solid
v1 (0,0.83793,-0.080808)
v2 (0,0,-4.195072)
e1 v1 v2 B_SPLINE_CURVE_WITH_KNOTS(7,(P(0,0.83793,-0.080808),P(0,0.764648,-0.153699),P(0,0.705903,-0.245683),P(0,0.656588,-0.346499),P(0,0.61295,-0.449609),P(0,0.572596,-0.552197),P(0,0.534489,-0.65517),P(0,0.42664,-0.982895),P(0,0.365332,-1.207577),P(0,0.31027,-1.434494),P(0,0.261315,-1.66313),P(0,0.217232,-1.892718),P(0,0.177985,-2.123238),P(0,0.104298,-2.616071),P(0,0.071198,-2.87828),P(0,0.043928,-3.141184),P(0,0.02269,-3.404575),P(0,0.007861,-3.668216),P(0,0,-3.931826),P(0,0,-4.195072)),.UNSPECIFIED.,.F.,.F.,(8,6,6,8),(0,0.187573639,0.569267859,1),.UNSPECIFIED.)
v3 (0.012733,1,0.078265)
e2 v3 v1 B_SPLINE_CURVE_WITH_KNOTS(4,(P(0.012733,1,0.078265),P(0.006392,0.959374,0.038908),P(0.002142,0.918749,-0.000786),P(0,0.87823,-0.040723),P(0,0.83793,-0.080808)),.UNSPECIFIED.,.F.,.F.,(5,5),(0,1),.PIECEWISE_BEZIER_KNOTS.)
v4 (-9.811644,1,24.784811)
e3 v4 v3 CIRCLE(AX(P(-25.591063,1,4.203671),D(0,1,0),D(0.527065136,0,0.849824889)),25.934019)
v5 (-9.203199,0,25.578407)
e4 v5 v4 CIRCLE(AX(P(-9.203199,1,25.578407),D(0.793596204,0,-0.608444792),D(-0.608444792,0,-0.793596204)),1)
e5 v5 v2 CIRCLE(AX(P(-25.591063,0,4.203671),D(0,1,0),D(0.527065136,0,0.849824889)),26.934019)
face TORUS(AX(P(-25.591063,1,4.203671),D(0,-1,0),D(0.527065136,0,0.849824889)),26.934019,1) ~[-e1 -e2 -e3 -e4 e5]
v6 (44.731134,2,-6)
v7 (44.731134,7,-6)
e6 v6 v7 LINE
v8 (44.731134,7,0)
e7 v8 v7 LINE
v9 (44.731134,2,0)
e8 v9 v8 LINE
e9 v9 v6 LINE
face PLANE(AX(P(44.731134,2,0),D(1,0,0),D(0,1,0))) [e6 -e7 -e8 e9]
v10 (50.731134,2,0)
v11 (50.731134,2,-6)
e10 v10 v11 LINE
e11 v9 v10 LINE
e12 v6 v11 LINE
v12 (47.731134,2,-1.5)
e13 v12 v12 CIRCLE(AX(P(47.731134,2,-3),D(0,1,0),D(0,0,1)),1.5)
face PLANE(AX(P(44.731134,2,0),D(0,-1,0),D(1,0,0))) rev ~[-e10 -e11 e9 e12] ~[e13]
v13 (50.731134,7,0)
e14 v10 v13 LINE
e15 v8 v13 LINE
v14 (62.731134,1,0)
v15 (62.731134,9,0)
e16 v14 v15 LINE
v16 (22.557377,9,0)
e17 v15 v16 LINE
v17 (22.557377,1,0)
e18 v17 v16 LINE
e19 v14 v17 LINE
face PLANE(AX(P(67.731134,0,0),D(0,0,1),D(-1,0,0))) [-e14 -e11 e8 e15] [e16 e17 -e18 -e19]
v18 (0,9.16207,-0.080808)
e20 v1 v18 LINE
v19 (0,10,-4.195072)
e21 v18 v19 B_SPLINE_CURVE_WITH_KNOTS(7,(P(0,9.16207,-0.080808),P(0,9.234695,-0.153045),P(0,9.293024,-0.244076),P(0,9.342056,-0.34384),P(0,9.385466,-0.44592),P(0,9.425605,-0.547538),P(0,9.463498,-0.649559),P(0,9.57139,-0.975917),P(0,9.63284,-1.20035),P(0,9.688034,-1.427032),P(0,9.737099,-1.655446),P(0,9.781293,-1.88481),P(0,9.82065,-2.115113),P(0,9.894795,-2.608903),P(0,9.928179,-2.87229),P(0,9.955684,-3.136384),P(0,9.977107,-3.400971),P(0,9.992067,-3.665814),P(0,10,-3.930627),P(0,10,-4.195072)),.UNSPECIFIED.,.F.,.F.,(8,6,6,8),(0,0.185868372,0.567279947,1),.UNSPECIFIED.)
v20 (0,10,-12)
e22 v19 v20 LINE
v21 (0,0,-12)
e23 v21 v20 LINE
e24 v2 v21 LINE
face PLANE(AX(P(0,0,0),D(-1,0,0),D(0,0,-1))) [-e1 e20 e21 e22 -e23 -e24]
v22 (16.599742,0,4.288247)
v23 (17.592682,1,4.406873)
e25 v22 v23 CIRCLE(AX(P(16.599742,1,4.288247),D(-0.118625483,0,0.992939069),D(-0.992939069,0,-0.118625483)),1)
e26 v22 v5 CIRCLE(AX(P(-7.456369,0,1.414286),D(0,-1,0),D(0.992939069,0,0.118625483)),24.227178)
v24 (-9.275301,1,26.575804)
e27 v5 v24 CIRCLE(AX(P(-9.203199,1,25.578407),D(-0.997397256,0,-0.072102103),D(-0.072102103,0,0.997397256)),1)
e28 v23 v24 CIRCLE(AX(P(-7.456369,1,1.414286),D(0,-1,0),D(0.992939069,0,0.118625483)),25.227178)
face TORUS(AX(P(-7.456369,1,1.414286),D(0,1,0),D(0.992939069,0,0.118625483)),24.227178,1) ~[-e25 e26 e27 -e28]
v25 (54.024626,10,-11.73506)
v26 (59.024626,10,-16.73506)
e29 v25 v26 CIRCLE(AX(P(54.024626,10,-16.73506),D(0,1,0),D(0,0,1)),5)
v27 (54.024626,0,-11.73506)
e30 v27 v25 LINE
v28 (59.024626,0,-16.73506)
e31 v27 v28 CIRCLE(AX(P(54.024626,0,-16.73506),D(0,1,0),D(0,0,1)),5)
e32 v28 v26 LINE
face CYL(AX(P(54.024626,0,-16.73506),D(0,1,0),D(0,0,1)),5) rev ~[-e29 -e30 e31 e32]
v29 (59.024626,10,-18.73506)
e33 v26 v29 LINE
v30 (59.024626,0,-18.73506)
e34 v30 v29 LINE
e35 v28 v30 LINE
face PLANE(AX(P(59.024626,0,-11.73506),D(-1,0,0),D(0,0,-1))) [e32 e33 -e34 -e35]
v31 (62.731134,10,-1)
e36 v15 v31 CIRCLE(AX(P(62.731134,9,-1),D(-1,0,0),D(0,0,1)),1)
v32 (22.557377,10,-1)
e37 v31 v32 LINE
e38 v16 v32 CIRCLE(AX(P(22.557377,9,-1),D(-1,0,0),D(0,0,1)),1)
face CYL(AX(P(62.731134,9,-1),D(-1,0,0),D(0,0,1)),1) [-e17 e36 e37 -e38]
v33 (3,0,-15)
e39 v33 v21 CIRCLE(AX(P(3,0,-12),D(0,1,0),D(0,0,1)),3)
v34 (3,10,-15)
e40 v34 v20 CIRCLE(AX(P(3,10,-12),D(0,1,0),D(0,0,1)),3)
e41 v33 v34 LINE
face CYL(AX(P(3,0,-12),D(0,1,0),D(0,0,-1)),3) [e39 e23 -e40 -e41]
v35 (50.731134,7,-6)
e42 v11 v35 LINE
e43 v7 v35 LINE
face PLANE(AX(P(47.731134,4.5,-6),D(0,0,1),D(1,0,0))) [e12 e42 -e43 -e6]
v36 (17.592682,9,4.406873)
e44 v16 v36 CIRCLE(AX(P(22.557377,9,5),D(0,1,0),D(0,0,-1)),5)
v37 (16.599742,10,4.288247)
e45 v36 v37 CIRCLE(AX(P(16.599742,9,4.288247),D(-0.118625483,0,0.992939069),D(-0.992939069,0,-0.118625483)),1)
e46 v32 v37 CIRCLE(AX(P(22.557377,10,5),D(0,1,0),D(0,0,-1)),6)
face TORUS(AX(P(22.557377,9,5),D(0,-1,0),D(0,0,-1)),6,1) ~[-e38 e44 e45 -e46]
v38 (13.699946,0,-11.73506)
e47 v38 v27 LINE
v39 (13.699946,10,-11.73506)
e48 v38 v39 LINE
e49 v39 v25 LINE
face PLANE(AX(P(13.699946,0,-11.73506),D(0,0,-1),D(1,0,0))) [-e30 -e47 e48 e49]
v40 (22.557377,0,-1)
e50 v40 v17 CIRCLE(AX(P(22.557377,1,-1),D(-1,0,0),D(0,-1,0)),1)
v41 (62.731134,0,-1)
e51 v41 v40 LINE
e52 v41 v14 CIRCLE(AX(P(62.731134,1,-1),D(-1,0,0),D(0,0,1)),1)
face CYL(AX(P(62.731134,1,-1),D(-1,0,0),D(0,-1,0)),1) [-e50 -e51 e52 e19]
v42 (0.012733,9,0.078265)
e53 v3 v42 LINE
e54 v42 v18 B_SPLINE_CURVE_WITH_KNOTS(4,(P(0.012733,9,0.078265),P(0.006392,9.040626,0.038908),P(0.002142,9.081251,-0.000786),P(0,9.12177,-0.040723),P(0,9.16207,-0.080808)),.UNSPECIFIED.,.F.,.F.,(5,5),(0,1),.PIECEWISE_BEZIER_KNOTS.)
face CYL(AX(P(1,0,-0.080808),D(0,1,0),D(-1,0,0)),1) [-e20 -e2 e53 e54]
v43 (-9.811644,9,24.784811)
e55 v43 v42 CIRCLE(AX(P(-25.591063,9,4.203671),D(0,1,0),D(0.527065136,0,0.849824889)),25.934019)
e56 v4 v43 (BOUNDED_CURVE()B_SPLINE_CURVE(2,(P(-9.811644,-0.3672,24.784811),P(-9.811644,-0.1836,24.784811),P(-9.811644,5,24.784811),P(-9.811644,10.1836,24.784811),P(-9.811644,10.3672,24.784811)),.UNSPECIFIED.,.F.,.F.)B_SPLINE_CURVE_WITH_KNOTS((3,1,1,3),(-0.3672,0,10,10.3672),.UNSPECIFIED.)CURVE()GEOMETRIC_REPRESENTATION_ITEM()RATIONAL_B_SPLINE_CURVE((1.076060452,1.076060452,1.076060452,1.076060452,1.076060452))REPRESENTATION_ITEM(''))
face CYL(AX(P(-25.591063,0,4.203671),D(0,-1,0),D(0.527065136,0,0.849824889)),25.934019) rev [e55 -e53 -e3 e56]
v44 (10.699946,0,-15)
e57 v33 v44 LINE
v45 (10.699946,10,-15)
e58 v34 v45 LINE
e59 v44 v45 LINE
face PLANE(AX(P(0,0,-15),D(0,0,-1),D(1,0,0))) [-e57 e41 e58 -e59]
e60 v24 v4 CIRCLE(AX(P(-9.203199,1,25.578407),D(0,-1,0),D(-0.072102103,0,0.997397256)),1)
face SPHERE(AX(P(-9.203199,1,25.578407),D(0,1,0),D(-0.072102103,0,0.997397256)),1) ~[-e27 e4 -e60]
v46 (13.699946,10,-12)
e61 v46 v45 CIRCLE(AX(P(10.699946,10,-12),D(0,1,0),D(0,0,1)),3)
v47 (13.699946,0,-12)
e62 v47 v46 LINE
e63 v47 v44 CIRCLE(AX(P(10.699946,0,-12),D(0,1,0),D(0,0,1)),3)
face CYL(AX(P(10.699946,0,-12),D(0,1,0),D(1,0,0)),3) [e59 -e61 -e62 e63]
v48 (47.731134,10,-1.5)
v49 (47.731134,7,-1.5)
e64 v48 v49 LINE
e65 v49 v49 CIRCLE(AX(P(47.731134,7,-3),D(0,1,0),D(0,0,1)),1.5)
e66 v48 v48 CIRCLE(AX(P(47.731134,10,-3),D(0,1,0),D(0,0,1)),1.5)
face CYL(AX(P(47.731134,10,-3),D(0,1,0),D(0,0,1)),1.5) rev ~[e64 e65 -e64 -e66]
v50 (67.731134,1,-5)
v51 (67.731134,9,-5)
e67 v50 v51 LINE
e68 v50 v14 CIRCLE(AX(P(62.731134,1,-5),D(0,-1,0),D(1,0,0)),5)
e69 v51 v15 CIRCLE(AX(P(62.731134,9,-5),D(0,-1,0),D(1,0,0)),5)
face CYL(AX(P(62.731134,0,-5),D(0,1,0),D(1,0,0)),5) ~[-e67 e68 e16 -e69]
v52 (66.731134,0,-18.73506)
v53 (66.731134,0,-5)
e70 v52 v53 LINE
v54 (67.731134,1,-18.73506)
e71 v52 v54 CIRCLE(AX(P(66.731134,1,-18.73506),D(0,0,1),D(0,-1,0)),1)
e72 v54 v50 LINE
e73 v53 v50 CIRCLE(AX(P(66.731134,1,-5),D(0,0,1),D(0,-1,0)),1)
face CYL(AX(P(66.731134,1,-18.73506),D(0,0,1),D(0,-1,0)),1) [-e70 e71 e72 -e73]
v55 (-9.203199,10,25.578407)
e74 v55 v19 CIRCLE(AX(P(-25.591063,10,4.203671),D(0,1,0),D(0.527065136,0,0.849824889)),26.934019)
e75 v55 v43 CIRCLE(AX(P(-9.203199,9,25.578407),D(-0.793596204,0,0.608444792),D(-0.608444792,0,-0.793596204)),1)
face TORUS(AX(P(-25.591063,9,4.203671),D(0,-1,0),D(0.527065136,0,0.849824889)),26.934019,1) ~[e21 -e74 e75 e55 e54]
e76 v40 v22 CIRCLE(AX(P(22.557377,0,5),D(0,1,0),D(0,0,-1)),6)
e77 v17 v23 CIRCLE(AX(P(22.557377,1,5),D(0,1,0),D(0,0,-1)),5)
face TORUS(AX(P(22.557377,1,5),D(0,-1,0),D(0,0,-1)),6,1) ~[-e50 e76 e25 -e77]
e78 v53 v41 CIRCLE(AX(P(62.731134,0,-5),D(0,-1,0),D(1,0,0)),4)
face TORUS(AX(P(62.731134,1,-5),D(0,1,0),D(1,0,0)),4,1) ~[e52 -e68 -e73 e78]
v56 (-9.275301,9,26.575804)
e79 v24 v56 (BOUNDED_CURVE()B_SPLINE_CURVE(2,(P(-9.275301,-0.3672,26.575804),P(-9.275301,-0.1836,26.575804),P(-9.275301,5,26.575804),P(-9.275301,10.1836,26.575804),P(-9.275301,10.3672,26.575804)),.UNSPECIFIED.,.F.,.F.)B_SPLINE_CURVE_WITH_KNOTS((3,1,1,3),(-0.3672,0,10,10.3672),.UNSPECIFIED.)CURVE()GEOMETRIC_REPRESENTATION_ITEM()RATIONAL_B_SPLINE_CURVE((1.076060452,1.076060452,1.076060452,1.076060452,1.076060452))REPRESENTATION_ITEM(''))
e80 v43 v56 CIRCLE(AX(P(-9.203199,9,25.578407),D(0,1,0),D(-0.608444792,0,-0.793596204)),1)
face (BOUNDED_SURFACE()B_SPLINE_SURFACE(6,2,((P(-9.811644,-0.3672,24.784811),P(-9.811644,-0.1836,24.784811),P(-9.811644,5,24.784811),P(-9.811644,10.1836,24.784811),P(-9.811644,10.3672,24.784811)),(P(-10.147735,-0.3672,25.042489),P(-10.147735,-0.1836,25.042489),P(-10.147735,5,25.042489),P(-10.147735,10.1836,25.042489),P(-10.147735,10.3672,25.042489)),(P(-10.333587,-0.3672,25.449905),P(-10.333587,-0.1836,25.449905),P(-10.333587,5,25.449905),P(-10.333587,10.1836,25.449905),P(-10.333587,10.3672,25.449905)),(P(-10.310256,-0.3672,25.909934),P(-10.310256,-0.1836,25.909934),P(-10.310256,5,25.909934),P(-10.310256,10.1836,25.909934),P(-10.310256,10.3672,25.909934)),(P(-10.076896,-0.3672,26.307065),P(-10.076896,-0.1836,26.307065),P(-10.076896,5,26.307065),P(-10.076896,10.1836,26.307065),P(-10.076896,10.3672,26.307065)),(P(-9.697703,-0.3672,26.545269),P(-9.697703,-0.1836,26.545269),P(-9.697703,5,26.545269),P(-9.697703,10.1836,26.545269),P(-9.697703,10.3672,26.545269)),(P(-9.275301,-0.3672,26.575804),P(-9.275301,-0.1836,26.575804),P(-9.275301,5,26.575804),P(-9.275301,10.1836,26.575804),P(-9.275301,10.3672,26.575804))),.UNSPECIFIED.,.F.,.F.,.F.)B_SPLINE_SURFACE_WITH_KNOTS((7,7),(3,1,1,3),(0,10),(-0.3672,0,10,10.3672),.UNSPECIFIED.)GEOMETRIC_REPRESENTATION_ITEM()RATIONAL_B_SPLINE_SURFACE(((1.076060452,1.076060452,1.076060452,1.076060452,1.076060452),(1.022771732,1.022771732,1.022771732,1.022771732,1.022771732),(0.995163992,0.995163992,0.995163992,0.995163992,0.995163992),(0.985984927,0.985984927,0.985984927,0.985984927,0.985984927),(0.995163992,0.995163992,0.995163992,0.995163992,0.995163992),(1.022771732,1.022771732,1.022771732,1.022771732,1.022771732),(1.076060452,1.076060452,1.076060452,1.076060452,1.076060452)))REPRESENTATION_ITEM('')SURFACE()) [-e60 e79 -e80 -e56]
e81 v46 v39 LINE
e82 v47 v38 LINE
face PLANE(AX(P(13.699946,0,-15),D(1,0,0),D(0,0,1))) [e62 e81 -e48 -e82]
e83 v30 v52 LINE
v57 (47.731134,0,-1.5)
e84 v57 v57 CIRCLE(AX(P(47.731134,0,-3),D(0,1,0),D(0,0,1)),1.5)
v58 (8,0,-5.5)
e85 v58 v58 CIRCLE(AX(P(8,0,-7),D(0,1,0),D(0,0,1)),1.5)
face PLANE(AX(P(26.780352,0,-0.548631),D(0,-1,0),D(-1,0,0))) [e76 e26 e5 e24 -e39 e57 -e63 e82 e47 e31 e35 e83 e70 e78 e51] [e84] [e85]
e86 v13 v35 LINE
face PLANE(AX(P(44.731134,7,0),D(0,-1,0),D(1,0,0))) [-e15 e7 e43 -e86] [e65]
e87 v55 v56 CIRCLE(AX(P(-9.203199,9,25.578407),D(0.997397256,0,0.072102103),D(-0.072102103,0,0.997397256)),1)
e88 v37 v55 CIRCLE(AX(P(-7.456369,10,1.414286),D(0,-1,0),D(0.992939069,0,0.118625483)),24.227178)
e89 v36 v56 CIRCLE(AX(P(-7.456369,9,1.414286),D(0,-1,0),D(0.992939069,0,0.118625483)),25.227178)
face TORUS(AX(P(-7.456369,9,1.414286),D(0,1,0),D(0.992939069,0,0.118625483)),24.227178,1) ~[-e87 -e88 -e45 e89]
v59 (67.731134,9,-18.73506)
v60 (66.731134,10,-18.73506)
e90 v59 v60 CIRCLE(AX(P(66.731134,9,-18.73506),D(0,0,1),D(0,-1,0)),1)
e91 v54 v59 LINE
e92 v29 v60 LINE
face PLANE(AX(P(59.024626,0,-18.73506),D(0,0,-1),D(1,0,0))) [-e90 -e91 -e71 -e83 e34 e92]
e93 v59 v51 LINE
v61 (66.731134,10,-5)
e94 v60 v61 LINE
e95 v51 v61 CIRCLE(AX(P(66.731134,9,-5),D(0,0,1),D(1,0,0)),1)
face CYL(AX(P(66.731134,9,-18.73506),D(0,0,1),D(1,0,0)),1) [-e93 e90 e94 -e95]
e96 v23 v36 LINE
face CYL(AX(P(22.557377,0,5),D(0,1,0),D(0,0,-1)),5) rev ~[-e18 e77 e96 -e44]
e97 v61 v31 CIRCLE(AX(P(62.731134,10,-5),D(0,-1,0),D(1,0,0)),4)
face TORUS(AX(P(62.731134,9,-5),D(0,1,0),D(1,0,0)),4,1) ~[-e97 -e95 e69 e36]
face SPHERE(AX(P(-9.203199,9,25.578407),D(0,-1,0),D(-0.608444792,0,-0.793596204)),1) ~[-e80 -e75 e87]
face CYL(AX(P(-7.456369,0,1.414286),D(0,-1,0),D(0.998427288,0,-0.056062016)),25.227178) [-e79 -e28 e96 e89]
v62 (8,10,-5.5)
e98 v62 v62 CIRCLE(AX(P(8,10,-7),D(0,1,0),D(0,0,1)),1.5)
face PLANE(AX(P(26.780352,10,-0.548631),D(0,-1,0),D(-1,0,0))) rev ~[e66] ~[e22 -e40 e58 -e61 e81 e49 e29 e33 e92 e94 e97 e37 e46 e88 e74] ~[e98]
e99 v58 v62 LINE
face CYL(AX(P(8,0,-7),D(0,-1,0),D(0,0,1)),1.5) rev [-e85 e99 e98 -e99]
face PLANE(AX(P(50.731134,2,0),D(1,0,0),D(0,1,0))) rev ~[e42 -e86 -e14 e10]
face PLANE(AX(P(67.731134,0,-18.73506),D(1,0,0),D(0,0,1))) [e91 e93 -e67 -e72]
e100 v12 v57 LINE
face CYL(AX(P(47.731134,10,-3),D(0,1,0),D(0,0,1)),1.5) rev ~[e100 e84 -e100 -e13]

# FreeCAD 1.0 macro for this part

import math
import FreeCAD as App
import Part
import Sketcher

V = App.Vector
Q = App.Units.Quantity


def edges_at(feature, points):
    """Names of the edges that pass closest to the given points."""
    edges = feature.Shape.Edges
    near = lambda p: min(range(len(edges)), key=lambda i: edges[i].distToShape(Part.Vertex(*p))[0])
    return sorted({f"Edge{near(p) + 1}" for p in points})


def add_polygon(sketch, points):
    """Adds a closed chain of lines whose ends are joined by coincident constraints."""
    first, n = sketch.GeometryCount, len(points)
    for a, b in zip(points, points[1:] + points[:1]):
        sketch.addGeometry(Part.LineSegment(App.Vector(*a, 0), App.Vector(*b, 0)), False)
    for i in range(n):
        sketch.addConstraint(Sketcher.Constraint("Coincident", first + i, 2, first + (i + 1) % n, 1))

doc = App.newDocument("Part")
params = doc.addObject("Spreadsheet::Sheet", "Params")
for row, (alias, value) in enumerate([
    ("sketch1_diameter", "3 mm"),
    ("sketch1_width", "50 mm"),
    ("sketch1_height", "15 mm"),
    ("sketch1_height2", "7 mm"),
    ("pad1_length", "10 mm"),
    ("fillet_radius", "3 mm"),
    ("sketch2_diameter", "3 mm"),
    ("pocket1_length", "11 mm"),
    ("fillet2_radius", "5 mm"),
    ("sketch3_width", "6 mm"),
    ("sketch3_height", "5 mm"),
    ("pocket2_length", "6 mm"),
    ("fillet3_radius", "1 mm"),
], start=1):
    params.set(f"A{row}", alias)
    params.set(f"B{row}", "=" + value)
    params.setAlias(f"B{row}", alias)

body = doc.addObject("PartDesign::Body", "Body")

sketch1 = body.newObject("Sketcher::SketchObject", "Sketch")
sketch1.AttachmentSupport = (doc.getObject("XZ_Plane"), [""])
sketch1.MapMode = "FlatFace"
sketch1.addGeometry([
    Part.LineSegment(V(59, -11.7, 0), V(13.7, -11.7, 0)),
    Part.LineSegment(V(13.7, -11.7, 0), V(13.7, -15, 0)),
    Part.LineSegment(V(13.7, -15, 0), V(0, -15, 0)),
    Part.LineSegment(V(0, -15, 0), V(0, 0, 0)),
    Part.ArcOfCircle(Part.Circle(V(-25.6, 4.2, 0), V(0, 0, 1), 25.9), math.radians(-9), math.radians(58)),
    Part.ArcOfCircle(Part.Circle(V(-7.5, 1.4, 0), V(0, 0, 1), 25.2), math.radians(-3), math.radians(100)),
    Part.LineSegment(V(17.7, 0, 0), V(67.7, 0, 0)),
    Part.LineSegment(V(67.7, 0, 0), V(67.7, -18.7, 0)),
    Part.LineSegment(V(67.7, -18.7, 0), V(59, -18.7, 0)),
    Part.LineSegment(V(59, -18.7, 0), V(59, -11.7, 0)),
    Part.Circle(V(8, -7, 0), V(0, 0, 1), 1.5),
], False)
sketch1.addConstraint([
    Sketcher.Constraint("Coincident", 0, 2, 1, 1),
    Sketcher.Constraint("Coincident", 1, 2, 2, 1),
    Sketcher.Constraint("Coincident", 2, 2, 3, 1),
    Sketcher.Constraint("Coincident", 3, 2, 4, 1),
    Sketcher.Constraint("Coincident", 4, 2, 5, 2),
    Sketcher.Constraint("Coincident", 5, 1, 6, 1),
    Sketcher.Constraint("Coincident", 6, 2, 7, 1),
    Sketcher.Constraint("Coincident", 7, 2, 8, 1),
    Sketcher.Constraint("Coincident", 8, 2, 9, 1),
    Sketcher.Constraint("Coincident", 9, 2, 0, 1),
    Sketcher.Constraint("Horizontal", 0),
    Sketcher.Constraint("Vertical", 1),
    Sketcher.Constraint("Horizontal", 2),
    Sketcher.Constraint("Vertical", 3),
    Sketcher.Constraint("Horizontal", 6),
    Sketcher.Constraint("Vertical", 7),
    Sketcher.Constraint("Horizontal", 8),
    Sketcher.Constraint("Vertical", 9),
    Sketcher.Constraint("Coincident", 3, 2, -1, 1),
    Sketcher.Constraint("PointOnObject", 5, 1, -1),
    Sketcher.Constraint("Diameter", 10, Q("3 mm")),
    Sketcher.Constraint("DistanceX", 6, 1, 6, 2, Q("50 mm")),
    Sketcher.Constraint("DistanceY", 3, 1, 3, 2, Q("15 mm")),
    Sketcher.Constraint("DistanceY", 9, 1, 9, 2, Q("7 mm")),
    Sketcher.Constraint("DistanceX", -1, 1, 10, 3, Q("8 mm")),
    Sketcher.Constraint("DistanceY", 10, 3, -1, 1, Q("7 mm")),
    Sketcher.Constraint("Radius", 4, Q("25.934019 mm")),
    Sketcher.Constraint("Radius", 5, Q("25.227178 mm")),
    Sketcher.Constraint("DistanceX", 0, 2, 0, 1, Q("45.32468 mm")),
    Sketcher.Constraint("DistanceY", 1, 2, 1, 1, Q("3.26494 mm")),
    Sketcher.Constraint("DistanceX", 2, 2, 2, 1, Q("13.699946 mm")),
    Sketcher.Constraint("DistanceX", 8, 2, 8, 1, Q("8.706508 mm")),
    Sketcher.Constraint("DistanceY", -1, 1, 4, 3, Q("4.203671 mm")),
    Sketcher.Constraint("DistanceX", 5, 3, -1, 1, Q("7.456369 mm")),
])
sketch1.setExpression("Constraints[20]", "Params.sketch1_diameter")
sketch1.setExpression("Constraints[21]", "Params.sketch1_width")
sketch1.setExpression("Constraints[22]", "Params.sketch1_height")
sketch1.setExpression("Constraints[23]", "Params.sketch1_height2")
pad1 = body.newObject("PartDesign::Pad", "Pad")
pad1.Profile = sketch1
pad1.setExpression("Length", "Params.pad1_length")
pad1.Reversed = True
doc.recompute()

fillet = body.newObject("PartDesign::Fillet", "Fillet")
fillet.Base = (pad1, edges_at(pad1, [(0, 5, -15), (13.7, 5, -15)]))
fillet.setExpression("Radius", "Params.fillet_radius")

sketch2 = body.newObject("Sketcher::SketchObject", "Sketch001")
sketch2.AttachmentSupport = (doc.getObject("XZ_Plane"), [""])
sketch2.MapMode = "FlatFace"
sketch2.AttachmentOffset = App.Placement(V(0, 0, -10), App.Rotation())
sketch2.addGeometry(Part.Circle(V(47.7, -3, 0), V(0, 0, 1), 1.5), False)
sketch2.addConstraint([
    Sketcher.Constraint("Diameter", 0, Q("3 mm")),
    Sketcher.Constraint("DistanceY", 0, 3, -1, 1, Q("3 mm")),
    Sketcher.Constraint("DistanceX", -1, 1, 0, 3, Q("47.731134 mm")),
])
sketch2.setExpression("Constraints[0]", "Params.sketch2_diameter")
pocket1 = body.newObject("PartDesign::Pocket", "Pocket")
pocket1.Profile = sketch2
pocket1.setExpression("Length", "Params.pocket1_length")
pocket1.Reversed = True
doc.recompute()

fillet2 = body.newObject("PartDesign::Fillet", "Fillet001")
fillet2.Base = (pocket1, edges_at(pocket1, [(67.731, 5, 0), (17.731, 5, 0), (59.025, 5, -11.735)]))
fillet2.setExpression("Radius", "Params.fillet2_radius")

sketch3 = body.newObject("Sketcher::SketchObject", "Sketch002")
sketch3.AttachmentSupport = (doc.getObject("XY_Plane"), [""])
sketch3.MapMode = "FlatFace"
add_polygon(sketch3, [(45, 7), (45, 2), (51, 2), (51, 7)])
sketch3.addConstraint([
    Sketcher.Constraint("Vertical", 0),
    Sketcher.Constraint("Horizontal", 1),
    Sketcher.Constraint("Vertical", 2),
    Sketcher.Constraint("Horizontal", 3),
    Sketcher.Constraint("DistanceX", 1, 1, 1, 2, Q("6 mm")),
    Sketcher.Constraint("DistanceY", 0, 2, 0, 1, Q("5 mm")),
    Sketcher.Constraint("DistanceY", -1, 1, 0, 2, Q("2 mm")),
    Sketcher.Constraint("DistanceX", -1, 1, 0, 2, Q("44.731134 mm")),
])
sketch3.setExpression("Constraints[8]", "Params.sketch3_width")
sketch3.setExpression("Constraints[9]", "Params.sketch3_height")
pocket2 = body.newObject("PartDesign::Pocket", "Pocket001")
pocket2.Profile = sketch3
pocket2.setExpression("Length", "Params.pocket2_length")
doc.recompute()

fillet3 = body.newObject("PartDesign::Fillet", "Fillet002")
fillet3.Base = (pocket2, edges_at(pocket2, [
    (7.548, 0, 21.695),
    (-1.979, 0, 14.93),
    (-11.922, 5, 26.243),
    (0, 5, 0),
    (-1.979, 10, 14.93),
    (7.548, 10, 21.695),
    (67.731, 0, -11.868),
    (67.731, 10, -11.868),
    (42.644, 0, 0),
    (66.267, 0, -1.464),
    (42.644, 10, 0),
    (66.267, 10, -1.464),
    (19.238, 0, 1.261),
    (19.238, 10, 1.261),
]))
fillet3.setExpression("Radius", "Params.fillet3_radius")

doc.recompute()
